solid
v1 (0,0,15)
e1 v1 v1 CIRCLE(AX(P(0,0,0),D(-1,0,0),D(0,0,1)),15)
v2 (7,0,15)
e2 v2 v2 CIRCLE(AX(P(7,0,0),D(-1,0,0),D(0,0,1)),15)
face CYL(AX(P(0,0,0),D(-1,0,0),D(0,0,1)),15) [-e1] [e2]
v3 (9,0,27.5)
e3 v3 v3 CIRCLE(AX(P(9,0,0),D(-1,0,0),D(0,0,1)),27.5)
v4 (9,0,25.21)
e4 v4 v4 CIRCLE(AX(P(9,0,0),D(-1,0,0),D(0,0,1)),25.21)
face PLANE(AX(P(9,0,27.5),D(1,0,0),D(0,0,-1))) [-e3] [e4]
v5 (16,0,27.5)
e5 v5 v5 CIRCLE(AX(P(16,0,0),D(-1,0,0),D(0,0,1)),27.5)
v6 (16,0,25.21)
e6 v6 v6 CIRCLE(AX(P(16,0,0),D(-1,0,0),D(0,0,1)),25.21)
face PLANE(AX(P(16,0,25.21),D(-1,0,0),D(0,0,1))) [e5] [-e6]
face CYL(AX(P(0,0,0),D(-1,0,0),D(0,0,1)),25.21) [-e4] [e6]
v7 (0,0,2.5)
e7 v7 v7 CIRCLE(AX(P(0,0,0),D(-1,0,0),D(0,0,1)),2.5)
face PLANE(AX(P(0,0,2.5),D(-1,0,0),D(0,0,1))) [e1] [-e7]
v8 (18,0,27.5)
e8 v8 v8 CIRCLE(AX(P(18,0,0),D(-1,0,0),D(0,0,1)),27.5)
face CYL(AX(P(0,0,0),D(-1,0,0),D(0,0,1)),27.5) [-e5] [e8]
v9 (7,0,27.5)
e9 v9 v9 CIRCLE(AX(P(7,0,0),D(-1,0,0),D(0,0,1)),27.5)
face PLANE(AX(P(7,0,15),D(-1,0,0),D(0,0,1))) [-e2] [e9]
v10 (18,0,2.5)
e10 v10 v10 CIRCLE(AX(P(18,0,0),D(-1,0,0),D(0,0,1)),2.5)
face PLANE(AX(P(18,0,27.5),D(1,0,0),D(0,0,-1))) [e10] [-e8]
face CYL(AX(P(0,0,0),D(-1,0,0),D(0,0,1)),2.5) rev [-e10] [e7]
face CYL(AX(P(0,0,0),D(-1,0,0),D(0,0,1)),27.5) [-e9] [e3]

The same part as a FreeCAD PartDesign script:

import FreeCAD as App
import Part
import Sketcher

doc = App.newDocument("Part")
params = doc.addObject("Spreadsheet::Sheet", "Params")
for row, (alias, value) in enumerate([
    ("sketch1_width", "7 mm"),
    ("sketch1_width2", "2 mm"),
    ("sketch1_height", "25 mm"),
    ("sketch1_height2", "2.29 mm"),
    ("revolution_angle", "360 deg"),
], start=1):
    params.set(f"A{row}", alias)
    params.set(f"B{row}", "=" + value)
    params.setAlias(f"B{row}", alias)

body = doc.addObject("PartDesign::Body", "Body")

# Sketch on XZ plane
sketch1 = body.newObject("Sketcher::SketchObject", "Sketch")
sketch1.AttachmentSupport = (doc.getObject("XZ_Plane"), [""])
sketch1.MapMode = "FlatFace"
sketch1.addGeometry([
    Part.LineSegment(App.Vector(0, 2.5, 0), App.Vector(0, 15, 0)),  # 0
    Part.LineSegment(App.Vector(0, 15, 0), App.Vector(7, 15, 0)),  # 1
    Part.LineSegment(App.Vector(7, 15, 0), App.Vector(7, 27.5, 0)),  # 2
    Part.LineSegment(App.Vector(7, 27.5, 0), App.Vector(9, 27.5, 0)),  # 3
    Part.LineSegment(App.Vector(9, 27.5, 0), App.Vector(9, 25.2, 0)),  # 4
    Part.LineSegment(App.Vector(9, 25.2, 0), App.Vector(16, 25.2, 0)),  # 5
    Part.LineSegment(App.Vector(16, 25.2, 0), App.Vector(16, 27.5, 0)),  # 6
    Part.LineSegment(App.Vector(16, 27.5, 0), App.Vector(18, 27.5, 0)),  # 7
    Part.LineSegment(App.Vector(18, 27.5, 0), App.Vector(18, 2.5, 0)),  # 8
    Part.LineSegment(App.Vector(18, 2.5, 0), App.Vector(0, 2.5, 0)),  # 9
], False)
sketch1.addConstraint([
    Sketcher.Constraint("Coincident", 0, 2, 1, 1),
    Sketcher.Constraint("Coincident", 1, 2, 2, 1),
    Sketcher.Constraint("Coincident", 2, 2, 3, 1),
    Sketcher.Constraint("Coincident", 3, 2, 4, 1),
    Sketcher.Constraint("Coincident", 4, 2, 5, 1),
    Sketcher.Constraint("Coincident", 5, 2, 6, 1),
    Sketcher.Constraint("Coincident", 6, 2, 7, 1),
    Sketcher.Constraint("Coincident", 7, 2, 8, 1),
    Sketcher.Constraint("Coincident", 8, 2, 9, 1),
    Sketcher.Constraint("Coincident", 9, 2, 0, 1),
    Sketcher.Constraint("Vertical", 0),
    Sketcher.Constraint("Horizontal", 1),
    Sketcher.Constraint("Vertical", 2),
    Sketcher.Constraint("Horizontal", 3),
    Sketcher.Constraint("Vertical", 4),
    Sketcher.Constraint("Horizontal", 5),
    Sketcher.Constraint("Vertical", 6),
    Sketcher.Constraint("Horizontal", 7),
    Sketcher.Constraint("Vertical", 8),
    Sketcher.Constraint("Horizontal", 9),
    Sketcher.Constraint("PointOnObject", 0, 2, -2),
    Sketcher.Constraint("Horizontal", 3, 2, 6, 2),
    Sketcher.Constraint("Equal", 1, 5),
    Sketcher.Constraint("Equal", 3, 7),
    Sketcher.Constraint("Equal", 0, 2),
    Sketcher.Constraint("DistanceX", 1, 1, 1, 2, 7.0),
    Sketcher.Constraint("DistanceX", 3, 1, 3, 2, 2.0),
    Sketcher.Constraint("DistanceY", 8, 2, 8, 1, 25.0),
    Sketcher.Constraint("DistanceY", -1, 1, 0, 2, 15.0),
    Sketcher.Constraint("DistanceY", 4, 2, 4, 1, 2.29),
])
sketch1.setExpression("Constraints[25]", "Params.sketch1_width")
sketch1.setExpression("Constraints[26]", "Params.sketch1_width2")
sketch1.setExpression("Constraints[27]", "Params.sketch1_height")
sketch1.setExpression("Constraints[29]", "Params.sketch1_height2")
revolution = body.newObject("PartDesign::Revolution", "Revolution")
revolution.Profile = sketch1
revolution.ReferenceAxis = (sketch1, ["H_Axis"])
revolution.setExpression("Angle", "Params.revolution_angle")

doc.recompute()
